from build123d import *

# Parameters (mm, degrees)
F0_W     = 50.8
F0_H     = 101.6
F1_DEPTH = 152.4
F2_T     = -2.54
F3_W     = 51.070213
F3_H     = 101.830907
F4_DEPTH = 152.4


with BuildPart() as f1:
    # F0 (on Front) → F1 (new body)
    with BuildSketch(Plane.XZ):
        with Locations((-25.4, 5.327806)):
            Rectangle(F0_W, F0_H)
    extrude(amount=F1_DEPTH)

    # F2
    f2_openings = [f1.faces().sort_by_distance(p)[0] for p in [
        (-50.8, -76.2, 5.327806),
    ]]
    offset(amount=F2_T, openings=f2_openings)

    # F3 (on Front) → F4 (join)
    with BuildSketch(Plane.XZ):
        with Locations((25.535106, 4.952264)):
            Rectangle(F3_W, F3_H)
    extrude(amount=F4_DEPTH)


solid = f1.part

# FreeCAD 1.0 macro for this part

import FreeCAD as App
import Part
import Sketcher
Q = App.Units.Quantity


def faces_at(feature, points):
    """Names of the faces that lie closest to the given points."""
    faces = feature.Shape.Faces
    near = lambda p: min(range(len(faces)), key=lambda i: faces[i].distToShape(Part.Vertex(*p))[0])
    return sorted({f"Face{near(p) + 1}" for p in points})

doc = App.newDocument("Part")
params = doc.addObject("Spreadsheet::Sheet", "Params")
for row, (alias, value) in enumerate([
    ("sketch1_width", "2 in"),
    ("sketch1_height", "4 in"),
    ("pad1_length", "6 in"),
    ("thickness_wall", "0.1 in"),
    ("pad2_length", "6 in"),
], start=1):
    params.set(f"A{row}", alias)
    params.set(f"B{row}", "=" + value)
    params.setAlias(f"B{row}", alias)

body = doc.addObject("PartDesign::Body", "Body")

sketch1 = doc.addObject("Sketcher::SketchObject", "Sketch")
body.addObject(sketch1)
sketch1.AttachmentSupport = (doc.XZ_Plane, [""])
sketch1.MapMode = "FlatFace"
sketch1.addGeometry([
    Part.LineSegment(App.Vector(-51, 56, 0), App.Vector(-51, -45, 0)),
    Part.LineSegment(App.Vector(-51, -45, 0), App.Vector(0, -45, 0)),
    Part.LineSegment(App.Vector(0, -45, 0), App.Vector(0, 56, 0)),
    Part.LineSegment(App.Vector(0, 56, 0), App.Vector(-51, 56, 0)),
], False)
sketch1.addConstraint([
    Sketcher.Constraint("Coincident", 0, 2, 1, 1),
    Sketcher.Constraint("Coincident", 1, 2, 2, 1),
    Sketcher.Constraint("Coincident", 2, 2, 3, 1),
    Sketcher.Constraint("Coincident", 3, 2, 0, 1),
    Sketcher.Constraint("Vertical", 0),
    Sketcher.Constraint("Horizontal", 1),
    Sketcher.Constraint("Vertical", 2),
    Sketcher.Constraint("Horizontal", 3),
    Sketcher.Constraint("PointOnObject", 1, 2, -2),
    Sketcher.Constraint("DistanceX", 1, 1, 1, 2, Q("2 in")),
    Sketcher.Constraint("DistanceY", 0, 2, 0, 1, Q("4 in")),
    Sketcher.Constraint("DistanceY", 0, 2, -1, 1, Q("45.472194 mm")),
])
sketch1.setExpression("Constraints[9]", "Params.sketch1_width")
sketch1.setExpression("Constraints[10]", "Params.sketch1_height")
pad1 = doc.addObject("PartDesign::Pad", "Pad")
body.addObject(pad1)
pad1.Profile = sketch1
pad1.setExpression("Length", "Params.pad1_length")
doc.recompute()

thickness = doc.addObject("PartDesign::Thickness", "Thickness")
body.addObject(thickness)
thickness.Base = (pad1, faces_at(pad1, [(-50.8, -76.2, 5.328)]))
thickness.setExpression("Value", "Params.thickness_wall")
thickness.Reversed = True
thickness.Join = "Arc"

sketch2 = doc.addObject("Sketcher::SketchObject", "Sketch001")
body.addObject(sketch2)
sketch2.AttachmentSupport = (doc.XZ_Plane, [""])
sketch2.MapMode = "FlatFace"
sketch2.addGeometry([
    Part.LineSegment(App.Vector(0, 56, 0), App.Vector(0, -46, 0)),
    Part.LineSegment(App.Vector(0, -46, 0), App.Vector(51, -46, 0)),
    Part.LineSegment(App.Vector(51, -46, 0), App.Vector(51, 56, 0)),
    Part.LineSegment(App.Vector(51, 56, 0), App.Vector(0, 56, 0)),
], False)
sketch2.addConstraint([
    Sketcher.Constraint("Coincident", 0, 2, 1, 1),
    Sketcher.Constraint("Coincident", 1, 2, 2, 1),
    Sketcher.Constraint("Coincident", 2, 2, 3, 1),
    Sketcher.Constraint("Coincident", 3, 2, 0, 1),
    Sketcher.Constraint("Vertical", 0),
    Sketcher.Constraint("Horizontal", 1),
    Sketcher.Constraint("Vertical", 2),
    Sketcher.Constraint("Horizontal", 3),
    Sketcher.Constraint("PointOnObject", 0, 2, -2),
    Sketcher.Constraint("DistanceX", 1, 1, 1, 2, Q("51.070213 mm")),
    Sketcher.Constraint("DistanceY", 0, 2, 0, 1, Q("101.830907 mm")),
    Sketcher.Constraint("DistanceY", 0, 2, -1, 1, Q("45.963189 mm")),
])
pad2 = doc.addObject("PartDesign::Pad", "Pad001")
body.addObject(pad2)
pad2.Profile = sketch2
pad2.setExpression("Length", "Params.pad2_length")

doc.recompute()
